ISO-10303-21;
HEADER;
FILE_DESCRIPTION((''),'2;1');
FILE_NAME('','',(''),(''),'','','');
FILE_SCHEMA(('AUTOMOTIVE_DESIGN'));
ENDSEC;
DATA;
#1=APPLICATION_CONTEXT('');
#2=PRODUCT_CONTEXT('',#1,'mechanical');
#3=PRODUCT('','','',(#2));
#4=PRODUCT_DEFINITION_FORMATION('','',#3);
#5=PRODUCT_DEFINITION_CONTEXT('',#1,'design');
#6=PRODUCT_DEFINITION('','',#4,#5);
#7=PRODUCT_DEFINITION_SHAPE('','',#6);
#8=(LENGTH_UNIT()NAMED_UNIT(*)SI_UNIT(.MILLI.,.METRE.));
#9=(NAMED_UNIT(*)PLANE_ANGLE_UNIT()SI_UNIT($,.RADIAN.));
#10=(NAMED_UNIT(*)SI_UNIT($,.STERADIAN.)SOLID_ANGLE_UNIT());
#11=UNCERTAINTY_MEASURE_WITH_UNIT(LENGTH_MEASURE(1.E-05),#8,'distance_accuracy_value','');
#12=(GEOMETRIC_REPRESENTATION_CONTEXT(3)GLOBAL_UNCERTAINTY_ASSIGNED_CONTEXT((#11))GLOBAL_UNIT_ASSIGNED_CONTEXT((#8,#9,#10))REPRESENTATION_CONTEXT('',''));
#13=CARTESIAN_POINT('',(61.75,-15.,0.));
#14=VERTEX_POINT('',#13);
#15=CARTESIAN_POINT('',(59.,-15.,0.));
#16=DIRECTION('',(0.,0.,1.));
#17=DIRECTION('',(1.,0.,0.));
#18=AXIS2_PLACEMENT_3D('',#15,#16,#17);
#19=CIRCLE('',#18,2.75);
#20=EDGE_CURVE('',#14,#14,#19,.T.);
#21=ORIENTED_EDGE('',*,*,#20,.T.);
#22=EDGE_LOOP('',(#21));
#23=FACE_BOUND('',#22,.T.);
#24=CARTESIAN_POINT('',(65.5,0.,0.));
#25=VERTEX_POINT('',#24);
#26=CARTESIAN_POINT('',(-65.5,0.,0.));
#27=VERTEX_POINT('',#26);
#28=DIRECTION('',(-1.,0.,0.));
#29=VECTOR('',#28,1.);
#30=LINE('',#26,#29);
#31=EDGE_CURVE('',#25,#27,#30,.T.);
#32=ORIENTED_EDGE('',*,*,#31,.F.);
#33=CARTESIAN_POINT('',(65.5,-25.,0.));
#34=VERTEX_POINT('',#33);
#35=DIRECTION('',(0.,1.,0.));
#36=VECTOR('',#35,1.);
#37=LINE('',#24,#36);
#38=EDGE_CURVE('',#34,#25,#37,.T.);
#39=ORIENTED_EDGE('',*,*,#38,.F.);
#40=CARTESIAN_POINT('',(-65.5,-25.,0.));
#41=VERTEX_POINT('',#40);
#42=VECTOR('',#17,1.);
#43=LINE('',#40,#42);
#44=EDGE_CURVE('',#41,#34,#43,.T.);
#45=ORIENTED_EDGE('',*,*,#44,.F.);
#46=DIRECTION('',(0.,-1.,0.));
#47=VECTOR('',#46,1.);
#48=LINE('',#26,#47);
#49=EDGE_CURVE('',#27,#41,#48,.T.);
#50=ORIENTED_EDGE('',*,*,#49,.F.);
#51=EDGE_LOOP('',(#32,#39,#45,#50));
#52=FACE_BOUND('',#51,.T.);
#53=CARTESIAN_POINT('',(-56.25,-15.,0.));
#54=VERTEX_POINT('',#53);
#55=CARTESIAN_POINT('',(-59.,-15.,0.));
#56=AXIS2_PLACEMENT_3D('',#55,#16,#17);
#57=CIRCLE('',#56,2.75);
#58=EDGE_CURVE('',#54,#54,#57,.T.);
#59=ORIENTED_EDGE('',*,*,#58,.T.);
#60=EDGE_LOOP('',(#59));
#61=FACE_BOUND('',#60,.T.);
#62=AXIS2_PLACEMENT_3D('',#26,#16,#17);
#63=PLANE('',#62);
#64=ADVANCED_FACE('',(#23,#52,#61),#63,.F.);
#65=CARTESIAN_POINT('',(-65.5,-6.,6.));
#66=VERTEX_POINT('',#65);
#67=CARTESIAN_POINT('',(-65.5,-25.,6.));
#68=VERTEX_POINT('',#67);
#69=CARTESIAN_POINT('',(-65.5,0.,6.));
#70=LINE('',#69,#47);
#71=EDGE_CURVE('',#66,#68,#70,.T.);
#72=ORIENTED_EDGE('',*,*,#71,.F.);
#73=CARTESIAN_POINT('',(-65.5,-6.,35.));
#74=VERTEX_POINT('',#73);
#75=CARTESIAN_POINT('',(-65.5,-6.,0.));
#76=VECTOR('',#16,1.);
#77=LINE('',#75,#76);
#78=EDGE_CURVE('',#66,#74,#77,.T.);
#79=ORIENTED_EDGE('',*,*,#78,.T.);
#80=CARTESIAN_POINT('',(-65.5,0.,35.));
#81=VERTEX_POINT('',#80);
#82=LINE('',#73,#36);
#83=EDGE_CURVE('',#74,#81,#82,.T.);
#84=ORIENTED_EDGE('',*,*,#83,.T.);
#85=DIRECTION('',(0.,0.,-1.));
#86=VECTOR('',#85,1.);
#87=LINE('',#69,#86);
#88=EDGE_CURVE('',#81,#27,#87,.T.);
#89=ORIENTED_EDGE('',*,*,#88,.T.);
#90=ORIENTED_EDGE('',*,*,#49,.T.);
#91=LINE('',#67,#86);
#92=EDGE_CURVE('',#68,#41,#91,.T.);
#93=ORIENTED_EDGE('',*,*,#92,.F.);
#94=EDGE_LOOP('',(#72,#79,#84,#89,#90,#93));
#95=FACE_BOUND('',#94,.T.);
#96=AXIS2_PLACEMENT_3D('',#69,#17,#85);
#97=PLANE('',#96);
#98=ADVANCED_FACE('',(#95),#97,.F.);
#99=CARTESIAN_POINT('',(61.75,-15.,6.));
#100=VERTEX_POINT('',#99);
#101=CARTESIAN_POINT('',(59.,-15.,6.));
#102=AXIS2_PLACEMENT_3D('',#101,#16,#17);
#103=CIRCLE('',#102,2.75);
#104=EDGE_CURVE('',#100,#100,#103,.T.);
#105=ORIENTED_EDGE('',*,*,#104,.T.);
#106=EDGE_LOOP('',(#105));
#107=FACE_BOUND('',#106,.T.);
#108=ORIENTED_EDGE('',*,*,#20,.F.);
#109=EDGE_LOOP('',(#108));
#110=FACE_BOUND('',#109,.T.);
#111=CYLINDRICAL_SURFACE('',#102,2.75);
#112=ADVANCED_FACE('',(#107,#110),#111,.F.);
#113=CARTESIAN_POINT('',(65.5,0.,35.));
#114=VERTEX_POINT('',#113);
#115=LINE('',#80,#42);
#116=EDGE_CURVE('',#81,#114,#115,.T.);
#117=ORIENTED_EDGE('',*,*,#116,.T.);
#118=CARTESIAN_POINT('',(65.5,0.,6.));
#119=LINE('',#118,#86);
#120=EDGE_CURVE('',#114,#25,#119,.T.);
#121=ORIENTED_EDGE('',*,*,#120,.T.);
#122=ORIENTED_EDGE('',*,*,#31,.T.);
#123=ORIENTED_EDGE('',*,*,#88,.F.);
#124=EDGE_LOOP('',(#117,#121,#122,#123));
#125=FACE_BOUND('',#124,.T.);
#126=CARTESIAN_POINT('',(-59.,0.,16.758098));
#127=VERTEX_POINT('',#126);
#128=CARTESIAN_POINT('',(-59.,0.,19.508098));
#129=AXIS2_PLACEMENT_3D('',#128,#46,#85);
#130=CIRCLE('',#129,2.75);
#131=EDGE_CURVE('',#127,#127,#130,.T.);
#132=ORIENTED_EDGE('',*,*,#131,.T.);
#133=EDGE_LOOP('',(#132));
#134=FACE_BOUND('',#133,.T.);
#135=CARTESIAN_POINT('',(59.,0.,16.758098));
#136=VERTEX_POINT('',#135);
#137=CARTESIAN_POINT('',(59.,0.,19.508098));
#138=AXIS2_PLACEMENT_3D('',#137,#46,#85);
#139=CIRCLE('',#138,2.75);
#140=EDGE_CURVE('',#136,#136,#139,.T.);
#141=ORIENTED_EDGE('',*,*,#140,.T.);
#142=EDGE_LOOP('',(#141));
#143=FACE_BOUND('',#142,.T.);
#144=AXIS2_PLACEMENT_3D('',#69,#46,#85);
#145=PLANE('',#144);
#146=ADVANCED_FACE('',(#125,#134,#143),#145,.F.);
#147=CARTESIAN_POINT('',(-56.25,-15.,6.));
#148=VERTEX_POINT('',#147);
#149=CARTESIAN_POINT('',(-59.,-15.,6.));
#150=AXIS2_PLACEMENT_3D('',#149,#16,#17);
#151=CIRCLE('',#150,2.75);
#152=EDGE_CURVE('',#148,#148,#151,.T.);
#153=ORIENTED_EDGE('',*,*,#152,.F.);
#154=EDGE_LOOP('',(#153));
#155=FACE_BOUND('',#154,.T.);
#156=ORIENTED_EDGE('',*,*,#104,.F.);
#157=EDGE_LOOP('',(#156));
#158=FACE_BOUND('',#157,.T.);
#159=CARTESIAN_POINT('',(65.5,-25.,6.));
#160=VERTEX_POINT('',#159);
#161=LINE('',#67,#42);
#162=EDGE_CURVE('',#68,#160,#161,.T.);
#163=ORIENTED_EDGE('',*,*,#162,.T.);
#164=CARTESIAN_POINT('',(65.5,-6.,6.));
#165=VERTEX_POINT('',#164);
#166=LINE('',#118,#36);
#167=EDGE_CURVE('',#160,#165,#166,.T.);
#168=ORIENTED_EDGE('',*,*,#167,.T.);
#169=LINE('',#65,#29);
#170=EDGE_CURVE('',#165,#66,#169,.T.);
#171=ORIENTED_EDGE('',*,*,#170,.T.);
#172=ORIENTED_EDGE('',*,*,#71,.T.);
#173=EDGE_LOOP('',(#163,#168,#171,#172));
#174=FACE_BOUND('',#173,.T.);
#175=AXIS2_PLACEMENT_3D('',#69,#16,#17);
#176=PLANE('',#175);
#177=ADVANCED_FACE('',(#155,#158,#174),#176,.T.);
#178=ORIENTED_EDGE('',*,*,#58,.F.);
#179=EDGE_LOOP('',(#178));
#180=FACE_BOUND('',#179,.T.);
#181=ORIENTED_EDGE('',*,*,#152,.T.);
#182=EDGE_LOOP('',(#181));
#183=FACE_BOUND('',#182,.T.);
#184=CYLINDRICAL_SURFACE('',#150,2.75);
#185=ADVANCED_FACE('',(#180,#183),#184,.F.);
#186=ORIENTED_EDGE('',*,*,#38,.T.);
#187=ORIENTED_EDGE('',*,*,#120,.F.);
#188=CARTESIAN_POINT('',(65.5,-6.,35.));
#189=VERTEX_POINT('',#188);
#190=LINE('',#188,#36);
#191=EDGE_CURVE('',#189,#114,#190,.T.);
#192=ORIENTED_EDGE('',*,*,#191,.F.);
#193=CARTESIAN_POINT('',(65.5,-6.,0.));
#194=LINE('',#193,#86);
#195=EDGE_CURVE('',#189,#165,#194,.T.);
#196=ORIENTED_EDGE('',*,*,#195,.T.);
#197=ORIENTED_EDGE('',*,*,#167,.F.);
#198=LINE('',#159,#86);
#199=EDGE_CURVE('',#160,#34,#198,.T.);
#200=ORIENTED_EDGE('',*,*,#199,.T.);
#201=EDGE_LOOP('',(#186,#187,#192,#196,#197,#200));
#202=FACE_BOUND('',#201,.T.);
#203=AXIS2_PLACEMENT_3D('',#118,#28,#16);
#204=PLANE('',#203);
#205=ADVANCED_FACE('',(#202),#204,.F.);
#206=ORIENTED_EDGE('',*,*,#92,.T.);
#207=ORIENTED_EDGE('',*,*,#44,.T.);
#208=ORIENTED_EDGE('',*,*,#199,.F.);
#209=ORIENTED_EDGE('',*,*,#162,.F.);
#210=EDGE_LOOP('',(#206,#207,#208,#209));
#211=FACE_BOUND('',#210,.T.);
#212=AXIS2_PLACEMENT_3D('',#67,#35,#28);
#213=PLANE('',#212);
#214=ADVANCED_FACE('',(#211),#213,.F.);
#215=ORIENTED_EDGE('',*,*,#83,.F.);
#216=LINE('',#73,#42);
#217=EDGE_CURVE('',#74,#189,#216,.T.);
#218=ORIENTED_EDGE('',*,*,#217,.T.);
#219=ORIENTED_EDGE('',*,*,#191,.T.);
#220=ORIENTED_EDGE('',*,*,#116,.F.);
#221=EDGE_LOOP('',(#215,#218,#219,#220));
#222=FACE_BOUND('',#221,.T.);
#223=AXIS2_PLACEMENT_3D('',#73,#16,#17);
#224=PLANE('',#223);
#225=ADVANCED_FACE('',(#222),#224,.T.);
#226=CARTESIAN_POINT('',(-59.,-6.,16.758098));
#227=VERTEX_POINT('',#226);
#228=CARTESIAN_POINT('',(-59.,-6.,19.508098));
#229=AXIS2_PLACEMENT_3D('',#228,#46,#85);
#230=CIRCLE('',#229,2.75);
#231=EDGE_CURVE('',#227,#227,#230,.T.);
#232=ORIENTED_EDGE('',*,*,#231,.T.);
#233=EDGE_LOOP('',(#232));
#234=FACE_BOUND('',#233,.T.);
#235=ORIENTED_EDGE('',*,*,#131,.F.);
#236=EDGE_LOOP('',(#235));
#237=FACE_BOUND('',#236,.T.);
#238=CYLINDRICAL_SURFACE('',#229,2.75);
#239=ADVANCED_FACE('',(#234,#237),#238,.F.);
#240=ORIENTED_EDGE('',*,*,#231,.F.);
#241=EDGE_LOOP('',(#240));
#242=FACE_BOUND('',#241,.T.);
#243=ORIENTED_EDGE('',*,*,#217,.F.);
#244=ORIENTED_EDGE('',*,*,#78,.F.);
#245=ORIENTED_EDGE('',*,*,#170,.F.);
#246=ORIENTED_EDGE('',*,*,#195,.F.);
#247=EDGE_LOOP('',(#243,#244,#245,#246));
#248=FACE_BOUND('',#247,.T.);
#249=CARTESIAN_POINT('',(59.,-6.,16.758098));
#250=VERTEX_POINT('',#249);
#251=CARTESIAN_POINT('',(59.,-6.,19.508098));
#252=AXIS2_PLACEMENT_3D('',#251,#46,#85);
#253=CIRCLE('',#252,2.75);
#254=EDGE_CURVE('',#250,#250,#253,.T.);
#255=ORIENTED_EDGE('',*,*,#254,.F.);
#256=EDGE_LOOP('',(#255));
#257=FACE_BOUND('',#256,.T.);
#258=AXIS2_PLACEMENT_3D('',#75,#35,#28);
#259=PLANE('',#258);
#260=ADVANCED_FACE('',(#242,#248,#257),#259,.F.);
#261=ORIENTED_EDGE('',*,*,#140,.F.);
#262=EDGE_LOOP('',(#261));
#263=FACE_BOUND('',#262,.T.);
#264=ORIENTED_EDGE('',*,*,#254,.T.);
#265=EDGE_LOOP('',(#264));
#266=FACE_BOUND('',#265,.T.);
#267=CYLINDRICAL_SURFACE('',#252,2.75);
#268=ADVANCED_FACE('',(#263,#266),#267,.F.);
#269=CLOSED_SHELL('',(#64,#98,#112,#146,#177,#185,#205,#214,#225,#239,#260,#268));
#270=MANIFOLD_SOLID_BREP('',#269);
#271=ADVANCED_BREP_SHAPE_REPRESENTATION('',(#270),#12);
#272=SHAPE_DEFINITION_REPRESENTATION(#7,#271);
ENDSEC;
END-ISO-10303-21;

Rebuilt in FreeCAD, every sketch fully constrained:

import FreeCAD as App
import Part
import Sketcher

doc = App.newDocument("Part")
body = doc.addObject("PartDesign::Body", "Body")

sketch1 = body.newObject("Sketcher::SketchObject", "Sketch")
sketch1.AttachmentSupport = (doc.getObject("XY_Plane"), [""])
sketch1.MapMode = "FlatFace"
sketch1.addGeometry(Part.LineSegment(App.Vector(-66, 0, 0), App.Vector(-66, -25, 0)), False)
sketch1.addGeometry(Part.LineSegment(App.Vector(-66, -25, 0), App.Vector(66, -25, 0)), False)
sketch1.addGeometry(Part.LineSegment(App.Vector(66, -25, 0), App.Vector(66, 0, 0)), False)
sketch1.addGeometry(Part.LineSegment(App.Vector(66, 0, 0), App.Vector(-66, 0, 0)), False)
sketch1.addConstraint(Sketcher.Constraint("Coincident", 0, 2, 1, 1))
sketch1.addConstraint(Sketcher.Constraint("Coincident", 1, 2, 2, 1))
sketch1.addConstraint(Sketcher.Constraint("Coincident", 2, 2, 3, 1))
sketch1.addConstraint(Sketcher.Constraint("Coincident", 3, 2, 0, 1))
sketch1.addConstraint(Sketcher.Constraint("Vertical", 0))
sketch1.addConstraint(Sketcher.Constraint("Horizontal", 1))
sketch1.addConstraint(Sketcher.Constraint("Vertical", 2))
sketch1.addConstraint(Sketcher.Constraint("Horizontal", 3))
sketch1.addConstraint(Sketcher.Constraint("Symmetric", 2, 2, 3, 2, -1, 1))
sketch1.addConstraint(Sketcher.Constraint("DistanceX", 1, 1, 1, 2, 131.0))
sketch1.addConstraint(Sketcher.Constraint("DistanceY", 0, 2, 0, 1, 25.0))
pad1 = body.newObject("PartDesign::Pad", "Pad")
pad1.Profile = sketch1
pad1.Length = 6

sketch2 = body.newObject("Sketcher::SketchObject", "Sketch001")
sketch2.AttachmentSupport = (doc.getObject("XZ_Plane"), [""])
sketch2.MapMode = "FlatFace"
sketch2.addGeometry(Part.LineSegment(App.Vector(66, 35, 0), App.Vector(66, 0, 0)), False)
sketch2.addGeometry(Part.LineSegment(App.Vector(66, 0, 0), App.Vector(-66, 0, 0)), False)
sketch2.addGeometry(Part.LineSegment(App.Vector(-66, 0, 0), App.Vector(-66, 35, 0)), False)
sketch2.addGeometry(Part.LineSegment(App.Vector(-66, 35, 0), App.Vector(66, 35, 0)), False)
sketch2.addConstraint(Sketcher.Constraint("Coincident", 0, 2, 1, 1))
sketch2.addConstraint(Sketcher.Constraint("Coincident", 1, 2, 2, 1))
sketch2.addConstraint(Sketcher.Constraint("Coincident", 2, 2, 3, 1))
sketch2.addConstraint(Sketcher.Constraint("Coincident", 3, 2, 0, 1))
sketch2.addConstraint(Sketcher.Constraint("Vertical", 0))
sketch2.addConstraint(Sketcher.Constraint("Horizontal", 1))
sketch2.addConstraint(Sketcher.Constraint("Vertical", 2))
sketch2.addConstraint(Sketcher.Constraint("Horizontal", 3))
sketch2.addConstraint(Sketcher.Constraint("Symmetric", 0, 2, 1, 2, -1, 1))
sketch2.addConstraint(Sketcher.Constraint("DistanceX", 1, 2, 1, 1, 131.0))
sketch2.addConstraint(Sketcher.Constraint("DistanceY", 0, 2, 0, 1, 35.0))
pad2 = body.newObject("PartDesign::Pad", "Pad001")
pad2.Profile = sketch2
pad2.Length = 6

sketch3 = body.newObject("Sketcher::SketchObject", "Sketch002")
sketch3.AttachmentSupport = (doc.getObject("XY_Plane"), [""])
sketch3.MapMode = "FlatFace"
sketch3.AttachmentOffset = App.Placement(App.Vector(0, 0, 6), App.Rotation())
sketch3.addGeometry(Part.Circle(App.Vector(59, -15, 0), App.Vector(0, 0, 1), 2.8), False)
sketch3.addGeometry(Part.Circle(App.Vector(-59, -15, 0), App.Vector(0, 0, 1), 2.8), False)
sketch3.addConstraint(Sketcher.Constraint("Equal", 0, 1))
sketch3.addConstraint(Sketcher.Constraint("Symmetric", 0, 3, 1, 3, -2))
sketch3.addConstraint(Sketcher.Constraint("Diameter", 0, 5.5))
sketch3.addConstraint(Sketcher.Constraint("DistanceX", -1, 1, 0, 3, 59.0))
sketch3.addConstraint(Sketcher.Constraint("DistanceY", 0, 3, -1, 1, 15.0))
doc.recompute()
hole = body.newObject("PartDesign::Hole", "Hole")
hole.Profile = sketch3
hole.ThreadType = "None"
hole.Diameter = 5.5
hole.DepthType = "Dimension"
hole.Depth = 10
hole.DrillPoint = "Angled"
hole.DrillPointAngle = 118

sketch4 = body.newObject("Sketcher::SketchObject", "Sketch003")
sketch4.AttachmentSupport = (doc.getObject("XZ_Plane"), [""])
sketch4.MapMode = "FlatFace"
sketch4.AttachmentOffset = App.Placement(App.Vector(0, 0, 6), App.Rotation())
sketch4.addGeometry(Part.Circle(App.Vector(59, 19.5, 0), App.Vector(0, 0, 1), 2.8), False)
sketch4.addGeometry(Part.Circle(App.Vector(-59, 19.5, 0), App.Vector(0, 0, 1), 2.8), False)
sketch4.addConstraint(Sketcher.Constraint("Equal", 0, 1))
sketch4.addConstraint(Sketcher.Constraint("Symmetric", 0, 3, 1, 3, -2))
sketch4.addConstraint(Sketcher.Constraint("Diameter", 0, 5.5))
sketch4.addConstraint(Sketcher.Constraint("DistanceX", -1, 1, 0, 3, 59.0))
sketch4.addConstraint(Sketcher.Constraint("DistanceY", -1, 1, 0, 3, 19.508098))
doc.recompute()
hole2 = body.newObject("PartDesign::Hole", "Hole001")
hole2.Profile = sketch4
hole2.ThreadType = "None"
hole2.Diameter = 5.5
hole2.DepthType = "Dimension"
hole2.Depth = 10
hole2.DrillPoint = "Angled"
hole2.DrillPointAngle = 118

doc.recompute()
